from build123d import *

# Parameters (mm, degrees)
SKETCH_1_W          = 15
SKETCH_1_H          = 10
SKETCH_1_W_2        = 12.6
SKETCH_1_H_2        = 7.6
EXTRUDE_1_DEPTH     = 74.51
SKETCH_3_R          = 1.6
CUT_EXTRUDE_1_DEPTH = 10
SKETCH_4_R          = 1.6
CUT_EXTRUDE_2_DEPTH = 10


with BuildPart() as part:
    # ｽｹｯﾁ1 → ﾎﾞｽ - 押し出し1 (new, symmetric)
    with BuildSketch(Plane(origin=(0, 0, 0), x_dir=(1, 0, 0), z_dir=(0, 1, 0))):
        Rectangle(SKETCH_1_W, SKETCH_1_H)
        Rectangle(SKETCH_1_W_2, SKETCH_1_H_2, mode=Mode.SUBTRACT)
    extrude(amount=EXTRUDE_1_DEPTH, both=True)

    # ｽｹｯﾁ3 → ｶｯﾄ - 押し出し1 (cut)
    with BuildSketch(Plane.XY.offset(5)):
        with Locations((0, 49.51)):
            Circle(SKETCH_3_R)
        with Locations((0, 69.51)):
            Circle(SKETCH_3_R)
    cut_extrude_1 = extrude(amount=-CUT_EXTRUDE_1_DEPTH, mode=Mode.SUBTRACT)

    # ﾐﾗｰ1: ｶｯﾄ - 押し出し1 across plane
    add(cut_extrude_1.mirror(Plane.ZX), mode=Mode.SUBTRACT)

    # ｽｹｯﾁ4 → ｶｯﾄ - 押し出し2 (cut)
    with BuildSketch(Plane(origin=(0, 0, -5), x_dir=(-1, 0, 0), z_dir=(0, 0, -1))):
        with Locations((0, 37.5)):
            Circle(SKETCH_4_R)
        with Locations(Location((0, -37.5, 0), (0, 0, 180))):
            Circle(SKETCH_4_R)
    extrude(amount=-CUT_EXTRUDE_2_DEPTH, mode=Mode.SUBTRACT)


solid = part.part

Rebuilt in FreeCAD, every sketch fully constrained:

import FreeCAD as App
import Part
import Sketcher
from FreeCAD import Vector


def add_polygon(sketch, points):
    """Adds a closed chain of lines whose ends are joined by coincident constraints."""
    first, n = sketch.GeometryCount, len(points)
    for a, b in zip(points, points[1:] + points[:1]):
        sketch.addGeometry(Part.LineSegment(App.Vector(*a, 0), App.Vector(*b, 0)), False)
    for i in range(n):
        sketch.addConstraint(Sketcher.Constraint("Coincident", first + i, 2, first + (i + 1) % n, 1))

doc = App.newDocument("Part")
params = doc.addObject("Spreadsheet::Sheet", "Params")
for row, (alias, value) in enumerate([
    ("sketch1_width", "15 mm"),
    ("sketch1_height", "10 mm"),
    ("sketch1_width2", "12.6 mm"),
    ("sketch1_height2", "7.6 mm"),
    ("pad1_length", "149.02 mm"),
    ("sketch2_diameter", "3.2 mm"),
    ("pocket1_length", "10 mm"),
    ("sketch3_diameter", "3.2 mm"),
    ("pocket2_length", "10 mm"),
], start=1):
    params.set(f"A{row}", alias)
    params.set(f"B{row}", "=" + value)
    params.setAlias(f"B{row}", alias)

body = doc.addObject("PartDesign::Body", "Body")

# Sketch on XZ plane
sketch1 = doc.addObject("Sketcher::SketchObject", "Sketch")
body.addObject(sketch1)
sketch1.AttachmentSupport = (doc.XZ_Plane, [""])
sketch1.MapMode = "FlatFace"
add_polygon(sketch1, [(-8, -5), (-8, 5), (8, 5), (8, -5)])  # lines 0-3
add_polygon(sketch1, [(6, 4), (-6, 4), (-6, -4), (6, -4)])  # lines 4-7
sketch1.addConstraint([
    Sketcher.Constraint("Vertical", 0),
    Sketcher.Constraint("Horizontal", 1),
    Sketcher.Constraint("Vertical", 2),
    Sketcher.Constraint("Horizontal", 3),
    Sketcher.Constraint("Horizontal", 4),
    Sketcher.Constraint("Vertical", 5),
    Sketcher.Constraint("Horizontal", 6),
    Sketcher.Constraint("Vertical", 7),
    Sketcher.Constraint("Symmetric", 0, 2, 2, 2, -1, 1),
    Sketcher.Constraint("Symmetric", 4, 2, 6, 2, -1, 1),
    Sketcher.Constraint("DistanceX", 1, 1, 1, 2, 15.0),
    Sketcher.Constraint("DistanceY", 0, 1, 0, 2, 10.0),
    Sketcher.Constraint("DistanceX", 4, 2, 4, 1, 12.6),
    Sketcher.Constraint("DistanceY", 5, 2, 5, 1, 7.6),
])
sketch1.setExpression("Constraints[18]", "Params.sketch1_width")
sketch1.setExpression("Constraints[19]", "Params.sketch1_height")
sketch1.setExpression("Constraints[20]", "Params.sketch1_width2")
sketch1.setExpression("Constraints[21]", "Params.sketch1_height2")
pad1 = doc.addObject("PartDesign::Pad", "Pad")
body.addObject(pad1)
pad1.Profile = sketch1
pad1.setExpression("Length", "Params.pad1_length")
pad1.Midplane = True

# Sketch on XY plane
sketch2 = doc.addObject("Sketcher::SketchObject", "Sketch001")
body.addObject(sketch2)
sketch2.AttachmentSupport = (doc.XY_Plane, [""])
sketch2.MapMode = "FlatFace"
sketch2.AttachmentOffset = App.Placement(Vector(0, 0, 5), App.Rotation())
sketch2.addGeometry([
    Part.Circle(Vector(0, 49.5, 0), Vector(0, 0, 1), 1.6),
    Part.Circle(Vector(0, 69.5, 0), Vector(0, 0, 1), 1.6),
], False)
sketch2.addConstraint([
    Sketcher.Constraint("Equal", 0, 1),
    Sketcher.Constraint("PointOnObject", 0, 3, -2),
    Sketcher.Constraint("PointOnObject", 1, 3, -2),
    Sketcher.Constraint("Diameter", 0, 3.2),
    Sketcher.Constraint("DistanceY", 0, 3, 1, 3, 20.0),
    Sketcher.Constraint("DistanceY", -1, 1, 0, 3, 49.51),
])
sketch2.setExpression("Constraints[3]", "Params.sketch2_diameter")
pocket1 = doc.addObject("PartDesign::Pocket", "Pocket")
body.addObject(pocket1)
pocket1.Profile = sketch2
pocket1.setExpression("Length", "Params.pocket1_length")
doc.recompute()

mirrored = doc.addObject("PartDesign::Mirrored", "Mirrored")
body.addObject(mirrored)
mirrored.Originals = [pocket1]
mirrored.MirrorPlane = (doc.XZ_Plane, [""])
body.Tip = mirrored

# Sketch on XY plane
sketch3 = doc.addObject("Sketcher::SketchObject", "Sketch002")
body.addObject(sketch3)
sketch3.AttachmentSupport = (doc.XY_Plane, [""])
sketch3.MapMode = "FlatFace"
sketch3.AttachmentOffset = App.Placement(Vector(0, 0, -5), App.Rotation())
sketch3.addGeometry([
    Part.Circle(Vector(0, 37.5, 0), Vector(0, 0, 1), 1.6),
    Part.Circle(Vector(0, -37.5, 0), Vector(0, 0, 1), 1.6),
], False)
sketch3.addConstraint([
    Sketcher.Constraint("Equal", 0, 1),
    Sketcher.Constraint("Symmetric", 0, 3, 1, 3, -1, 1),
    Sketcher.Constraint("PointOnObject", 0, 3, -2),
    Sketcher.Constraint("Diameter", 0, 3.2),
    Sketcher.Constraint("DistanceY", 1, 3, 0, 3, 75.0),
])
sketch3.setExpression("Constraints[3]", "Params.sketch3_diameter")
pocket2 = doc.addObject("PartDesign::Pocket", "Pocket001")
body.addObject(pocket2)
pocket2.Profile = sketch3
pocket2.setExpression("Length", "Params.pocket2_length")
pocket2.Reversed = True

doc.recompute()
